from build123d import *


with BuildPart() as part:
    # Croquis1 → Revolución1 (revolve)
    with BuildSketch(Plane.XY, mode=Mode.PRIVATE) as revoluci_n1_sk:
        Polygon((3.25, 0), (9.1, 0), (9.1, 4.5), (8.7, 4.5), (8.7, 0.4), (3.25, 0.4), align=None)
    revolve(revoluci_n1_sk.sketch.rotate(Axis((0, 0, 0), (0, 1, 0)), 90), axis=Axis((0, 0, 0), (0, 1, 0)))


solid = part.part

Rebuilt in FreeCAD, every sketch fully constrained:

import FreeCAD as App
import Part
import Sketcher
from FreeCAD import Vector


def add_polygon(sketch, points):
    """Adds a closed chain of lines whose ends are joined by coincident constraints."""
    first, n = sketch.GeometryCount, len(points)
    for a, b in zip(points, points[1:] + points[:1]):
        sketch.addGeometry(Part.LineSegment(App.Vector(*a, 0), App.Vector(*b, 0)), False)
    for i in range(n):
        sketch.addConstraint(Sketcher.Constraint("Coincident", first + i, 2, first + (i + 1) % n, 1))

doc = App.newDocument("Part")
params = doc.addObject("Spreadsheet::Sheet", "Params")
for row, (alias, value) in enumerate([
    ("sketch1_width", "0.4 mm"),
    ("sketch1_height", "4.5 mm"),
    ("sketch1_width2", "5.85 mm"),
    ("revolution_angle", "360 deg"),
], start=1):
    params.set(f"A{row}", alias)
    params.set(f"B{row}", "=" + value)
    params.setAlias(f"B{row}", alias)

body = doc.addObject("PartDesign::Body", "Body")

sketch1 = body.newObject("Sketcher::SketchObject", "Sketch")
sketch1.AttachmentSupport = (doc.getObject("XY_Plane"), [""])
sketch1.MapMode = "FlatFace"
add_polygon(sketch1, [(3.25, 0), (9.1, 0), (9.1, 4.5), (8.7, 4.5), (8.7, 0.4), (3.25, 0.4)])
sketch1.addConstraint(Sketcher.Constraint("Horizontal", 0))
sketch1.addConstraint(Sketcher.Constraint("Vertical", 1))
sketch1.addConstraint(Sketcher.Constraint("Horizontal", 2))
sketch1.addConstraint(Sketcher.Constraint("Vertical", 3))
sketch1.addConstraint(Sketcher.Constraint("Horizontal", 4))
sketch1.addConstraint(Sketcher.Constraint("Vertical", 5))
sketch1.addConstraint(Sketcher.Constraint("PointOnObject", 0, 2, -1))
sketch1.addConstraint(Sketcher.Constraint("Equal", 2, 5))
sketch1.addConstraint(Sketcher.Constraint("DistanceX", 2, 2, 2, 1, 0.4))
sketch1.addConstraint(Sketcher.Constraint("DistanceY", 1, 1, 1, 2, 4.5))
sketch1.addConstraint(Sketcher.Constraint("DistanceX", 0, 1, 0, 2, 5.85))
sketch1.addConstraint(Sketcher.Constraint("DistanceX", -1, 1, 0, 2, 9.1))
sketch1.setExpression("Constraints[14]", "Params.sketch1_width")
sketch1.setExpression("Constraints[15]", "Params.sketch1_height")
sketch1.setExpression("Constraints[16]", "Params.sketch1_width2")
revolution = body.newObject("PartDesign::Revolution", "Revolution")
revolution.Profile = sketch1
revolution.ReferenceAxis = (sketch1, ["V_Axis"])
revolution.setExpression("Angle", "Params.revolution_angle")

doc.recompute()
